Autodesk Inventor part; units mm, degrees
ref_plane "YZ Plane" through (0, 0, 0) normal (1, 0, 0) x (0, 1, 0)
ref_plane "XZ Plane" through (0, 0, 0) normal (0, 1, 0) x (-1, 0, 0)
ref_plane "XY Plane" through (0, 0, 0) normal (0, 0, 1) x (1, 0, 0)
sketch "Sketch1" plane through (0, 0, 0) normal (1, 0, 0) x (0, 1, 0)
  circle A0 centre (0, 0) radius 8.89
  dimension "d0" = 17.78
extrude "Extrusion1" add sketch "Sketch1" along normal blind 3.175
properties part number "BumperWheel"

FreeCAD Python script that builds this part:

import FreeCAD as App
import Part
import Sketcher
from FreeCAD import Vector
Q = App.Units.Quantity

doc = App.newDocument("Part")
body = doc.addObject("PartDesign::Body", "Body")

sketch1 = doc.addObject("Sketcher::SketchObject", "Sketch")
body.addObject(sketch1)
sketch1.AttachmentSupport = (doc.YZ_Plane, [""])
sketch1.MapMode = "FlatFace"
sketch1.addGeometry(Part.Circle(Vector(0, 0, 0), Vector(0, 0, 1), 9), False)
sketch1.addConstraint(Sketcher.Constraint("Coincident", 0, 3, -1, 1))
sketch1.addConstraint(Sketcher.Constraint("Diameter", 0, Q("0.7 in")))
pad1 = doc.addObject("PartDesign::Pad", "Pad")
body.addObject(pad1)
pad1.Profile = sketch1
pad1.Length = Q("0.125 in")

doc.recompute()
